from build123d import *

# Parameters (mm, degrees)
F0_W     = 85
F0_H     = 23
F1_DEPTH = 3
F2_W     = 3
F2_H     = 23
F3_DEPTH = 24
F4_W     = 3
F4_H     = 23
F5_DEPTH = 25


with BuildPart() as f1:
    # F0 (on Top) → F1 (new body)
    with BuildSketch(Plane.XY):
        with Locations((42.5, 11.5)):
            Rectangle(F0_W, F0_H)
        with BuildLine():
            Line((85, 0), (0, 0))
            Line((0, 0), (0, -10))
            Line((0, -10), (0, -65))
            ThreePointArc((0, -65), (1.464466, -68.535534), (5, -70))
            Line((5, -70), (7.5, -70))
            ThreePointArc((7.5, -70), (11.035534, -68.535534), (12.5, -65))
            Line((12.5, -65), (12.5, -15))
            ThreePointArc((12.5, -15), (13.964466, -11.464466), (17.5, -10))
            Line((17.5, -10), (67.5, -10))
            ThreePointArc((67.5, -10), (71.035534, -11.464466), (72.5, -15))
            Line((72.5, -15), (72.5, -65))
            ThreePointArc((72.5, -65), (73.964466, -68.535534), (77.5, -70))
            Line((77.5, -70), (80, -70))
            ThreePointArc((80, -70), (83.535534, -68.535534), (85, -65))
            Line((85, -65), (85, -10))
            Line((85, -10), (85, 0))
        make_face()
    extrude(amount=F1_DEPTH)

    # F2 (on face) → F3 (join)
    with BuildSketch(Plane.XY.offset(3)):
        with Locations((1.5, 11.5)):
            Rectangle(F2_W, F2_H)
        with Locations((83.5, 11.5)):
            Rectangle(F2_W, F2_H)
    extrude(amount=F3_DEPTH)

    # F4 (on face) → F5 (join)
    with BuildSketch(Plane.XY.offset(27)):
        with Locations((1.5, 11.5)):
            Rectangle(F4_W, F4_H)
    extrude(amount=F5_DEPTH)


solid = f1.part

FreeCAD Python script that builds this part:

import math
import FreeCAD as App
import Part
import Sketcher

doc = App.newDocument("Part")
body = doc.addObject("PartDesign::Body", "Body")

sketch1 = body.newObject("Sketcher::SketchObject", "Sketch")
sketch1.AttachmentSupport = (doc.getObject("XY_Plane"), [""])
sketch1.MapMode = "FlatFace"
sketch1.addGeometry([
    Part.LineSegment(App.Vector(0, 23, 0), App.Vector(0, -65, 0)),
    Part.ArcOfCircle(Part.Circle(App.Vector(5, -65, 0), App.Vector(0, 0, 1), 5), math.radians(180), math.radians(270)),
    Part.LineSegment(App.Vector(5, -70, 0), App.Vector(7.5, -70, 0)),
    Part.ArcOfCircle(Part.Circle(App.Vector(7.5, -65, 0), App.Vector(0, 0, 1), 5), math.radians(-90), math.radians(0)),
    Part.LineSegment(App.Vector(12.5, -65, 0), App.Vector(12.5, -15, 0)),
    Part.ArcOfCircle(Part.Circle(App.Vector(17.5, -15, 0), App.Vector(0, 0, 1), 5), math.radians(90), math.radians(180)),
    Part.LineSegment(App.Vector(17.5, -10, 0), App.Vector(67.5, -10, 0)),
    Part.ArcOfCircle(Part.Circle(App.Vector(67.5, -15, 0), App.Vector(0, 0, 1), 5), math.radians(0), math.radians(90)),
    Part.LineSegment(App.Vector(72.5, -15, 0), App.Vector(72.5, -65, 0)),
    Part.ArcOfCircle(Part.Circle(App.Vector(77.5, -65, 0), App.Vector(0, 0, 1), 5), math.radians(180), math.radians(270)),
    Part.LineSegment(App.Vector(77.5, -70, 0), App.Vector(80, -70, 0)),
    Part.ArcOfCircle(Part.Circle(App.Vector(80, -65, 0), App.Vector(0, 0, 1), 5), math.radians(-90), math.radians(0)),
    Part.LineSegment(App.Vector(85, -65, 0), App.Vector(85, 23, 0)),
    Part.LineSegment(App.Vector(85, 23, 0), App.Vector(0, 23, 0)),
], False)
sketch1.addConstraint([
    Sketcher.Constraint("Tangent", 0, 2, 1, 1),
    Sketcher.Constraint("Tangent", 1, 2, 2, 1),
    Sketcher.Constraint("Tangent", 2, 2, 3, 1),
    Sketcher.Constraint("Tangent", 3, 2, 4, 1),
    Sketcher.Constraint("Tangent", 4, 2, 5, 2),
    Sketcher.Constraint("Tangent", 5, 1, 6, 1),
    Sketcher.Constraint("Tangent", 6, 2, 7, 2),
    Sketcher.Constraint("Tangent", 7, 1, 8, 1),
    Sketcher.Constraint("Tangent", 8, 2, 9, 1),
    Sketcher.Constraint("Tangent", 9, 2, 10, 1),
    Sketcher.Constraint("Tangent", 10, 2, 11, 1),
    Sketcher.Constraint("Tangent", 11, 2, 12, 1),
    Sketcher.Constraint("Coincident", 12, 2, 13, 1),
    Sketcher.Constraint("Coincident", 13, 2, 0, 1),
    Sketcher.Constraint("Vertical", 0),
    Sketcher.Constraint("Horizontal", 2),
    Sketcher.Constraint("Vertical", 4),
    Sketcher.Constraint("Horizontal", 6),
    Sketcher.Constraint("Vertical", 8),
    Sketcher.Constraint("Horizontal", 10),
    Sketcher.Constraint("Vertical", 12),
    Sketcher.Constraint("Horizontal", 13),
    Sketcher.Constraint("Equal", 1, 3),
    Sketcher.Constraint("Equal", 3, 5),
    Sketcher.Constraint("Equal", 5, 7),
    Sketcher.Constraint("Equal", 7, 9),
    Sketcher.Constraint("Equal", 9, 11),
    Sketcher.Constraint("PointOnObject", 0, 2, -2),
    Sketcher.Constraint("Horizontal", 3, 3, 9, 3),
    Sketcher.Constraint("Equal", 2, 10),
    Sketcher.Constraint("Equal", 6, 4),
    Sketcher.Constraint("Radius", 1, 5.0),
    Sketcher.Constraint("DistanceX", 6, 1, 6, 2, 50.0),
    Sketcher.Constraint("DistanceX", 13, 2, 13, 1, 85.0),
    Sketcher.Constraint("DistanceY", 0, 2, 0, 1, 88.0),
    Sketcher.Constraint("DistanceY", 1, 3, -1, 1, 65.0),
])
pad1 = body.newObject("PartDesign::Pad", "Pad")
pad1.Profile = sketch1
pad1.Length = 3

sketch2 = body.newObject("Sketcher::SketchObject", "Sketch001")
sketch2.AttachmentSupport = (doc.getObject("XY_Plane"), [""])
sketch2.MapMode = "FlatFace"
sketch2.AttachmentOffset = App.Placement(App.Vector(0, 0, 3), App.Rotation())
sketch2.addGeometry([
    Part.LineSegment(App.Vector(0, 23, 0), App.Vector(0, 0, 0)),
    Part.LineSegment(App.Vector(0, 0, 0), App.Vector(3, 0, 0)),
    Part.LineSegment(App.Vector(3, 0, 0), App.Vector(3, 23, 0)),
    Part.LineSegment(App.Vector(3, 23, 0), App.Vector(0, 23, 0)),
    Part.LineSegment(App.Vector(82, 23, 0), App.Vector(82, 0, 0)),
    Part.LineSegment(App.Vector(82, 0, 0), App.Vector(85, 0, 0)),
    Part.LineSegment(App.Vector(85, 0, 0), App.Vector(85, 23, 0)),
    Part.LineSegment(App.Vector(85, 23, 0), App.Vector(82, 23, 0)),
], False)
sketch2.addConstraint([
    Sketcher.Constraint("Coincident", 0, 2, 1, 1),
    Sketcher.Constraint("Coincident", 1, 2, 2, 1),
    Sketcher.Constraint("Coincident", 2, 2, 3, 1),
    Sketcher.Constraint("Coincident", 3, 2, 0, 1),
    Sketcher.Constraint("Coincident", 4, 2, 5, 1),
    Sketcher.Constraint("Coincident", 5, 2, 6, 1),
    Sketcher.Constraint("Coincident", 6, 2, 7, 1),
    Sketcher.Constraint("Coincident", 7, 2, 4, 1),
    Sketcher.Constraint("Vertical", 0),
    Sketcher.Constraint("Horizontal", 1),
    Sketcher.Constraint("Vertical", 2),
    Sketcher.Constraint("Horizontal", 3),
    Sketcher.Constraint("Vertical", 4),
    Sketcher.Constraint("Horizontal", 5),
    Sketcher.Constraint("Vertical", 6),
    Sketcher.Constraint("Horizontal", 7),
    Sketcher.Constraint("Coincident", 0, 2, -1, 1),
    Sketcher.Constraint("PointOnObject", 4, 2, -1),
    Sketcher.Constraint("Horizontal", 3, 2, 6, 2),
    Sketcher.Constraint("Equal", 3, 5),
    Sketcher.Constraint("DistanceX", 1, 1, 1, 2, 3.0),
    Sketcher.Constraint("DistanceY", 0, 2, 0, 1, 23.0),
    Sketcher.Constraint("DistanceX", -1, 1, 4, 2, 82.0),
])
pad2 = body.newObject("PartDesign::Pad", "Pad001")
pad2.Profile = sketch2
pad2.Length = 24

sketch3 = body.newObject("Sketcher::SketchObject", "Sketch002")
sketch3.AttachmentSupport = (doc.getObject("XY_Plane"), [""])
sketch3.MapMode = "FlatFace"
sketch3.AttachmentOffset = App.Placement(App.Vector(0, 0, 27), App.Rotation())
sketch3.addGeometry([
    Part.LineSegment(App.Vector(0, 23, 0), App.Vector(0, 0, 0)),
    Part.LineSegment(App.Vector(0, 0, 0), App.Vector(3, 0, 0)),
    Part.LineSegment(App.Vector(3, 0, 0), App.Vector(3, 23, 0)),
    Part.LineSegment(App.Vector(3, 23, 0), App.Vector(0, 23, 0)),
], False)
sketch3.addConstraint([
    Sketcher.Constraint("Coincident", 0, 2, 1, 1),
    Sketcher.Constraint("Coincident", 1, 2, 2, 1),
    Sketcher.Constraint("Coincident", 2, 2, 3, 1),
    Sketcher.Constraint("Coincident", 3, 2, 0, 1),
    Sketcher.Constraint("Vertical", 0),
    Sketcher.Constraint("Horizontal", 1),
    Sketcher.Constraint("Vertical", 2),
    Sketcher.Constraint("Horizontal", 3),
    Sketcher.Constraint("Coincident", 0, 2, -1, 1),
    Sketcher.Constraint("DistanceX", 1, 1, 1, 2, 3.0),
    Sketcher.Constraint("DistanceY", 0, 2, 0, 1, 23.0),
])
pad3 = body.newObject("PartDesign::Pad", "Pad002")
pad3.Profile = sketch3
pad3.Length = 25

doc.recompute()
